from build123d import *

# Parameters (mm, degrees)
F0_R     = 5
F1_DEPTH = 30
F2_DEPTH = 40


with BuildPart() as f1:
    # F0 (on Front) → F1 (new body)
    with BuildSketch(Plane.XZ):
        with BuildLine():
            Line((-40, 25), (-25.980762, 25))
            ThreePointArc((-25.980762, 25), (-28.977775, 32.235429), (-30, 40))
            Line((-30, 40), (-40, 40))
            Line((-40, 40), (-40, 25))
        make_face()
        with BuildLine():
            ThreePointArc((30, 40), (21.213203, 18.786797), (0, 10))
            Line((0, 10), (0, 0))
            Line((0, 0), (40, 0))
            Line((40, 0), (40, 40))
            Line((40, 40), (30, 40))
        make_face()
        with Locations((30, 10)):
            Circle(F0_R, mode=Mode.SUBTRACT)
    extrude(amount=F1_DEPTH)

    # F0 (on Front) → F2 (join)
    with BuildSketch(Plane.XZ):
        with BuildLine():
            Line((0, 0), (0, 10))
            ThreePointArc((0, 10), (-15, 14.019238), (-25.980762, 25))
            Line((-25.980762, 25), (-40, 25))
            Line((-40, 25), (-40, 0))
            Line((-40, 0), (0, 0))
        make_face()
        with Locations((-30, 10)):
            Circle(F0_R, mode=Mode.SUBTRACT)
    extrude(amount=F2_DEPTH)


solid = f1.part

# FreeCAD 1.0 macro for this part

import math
import FreeCAD as App
import Part
import Sketcher
from FreeCAD import Vector

doc = App.newDocument("Part")
body = doc.addObject("PartDesign::Body", "Body")
body.AllowCompound = True

# Sketch on XZ plane
sketch1 = doc.addObject("Sketcher::SketchObject", "Sketch")
body.addObject(sketch1)
sketch1.AttachmentSupport = (doc.XZ_Plane, [""])
sketch1.MapMode = "FlatFace"
sketch1.addGeometry([
    Part.LineSegment(Vector(-40, 25, 0), Vector(-26, 25, 0)),  # 0
    Part.ArcOfCircle(Part.Circle(Vector(0, 40, 0), Vector(0, 0, 1), 30), math.radians(180), math.radians(210)),  # 1
    Part.LineSegment(Vector(-30, 40, 0), Vector(-40, 40, 0)),  # 2
    Part.LineSegment(Vector(-40, 40, 0), Vector(-40, 25, 0)),  # 3
    Part.ArcOfCircle(Part.Circle(Vector(0, 40, 0), Vector(0, 0, 1), 30), math.radians(-90), math.radians(0)),  # 4
    Part.LineSegment(Vector(0, 10, 0), Vector(0, 0, 0)),  # 5
    Part.LineSegment(Vector(0, 0, 0), Vector(40, 0, 0)),  # 6
    Part.LineSegment(Vector(40, 0, 0), Vector(40, 40, 0)),  # 7
    Part.LineSegment(Vector(40, 40, 0), Vector(30, 40, 0)),  # 8
    Part.Circle(Vector(30, 10, 0), Vector(0, 0, 1), 5),  # 9
], False)
sketch1.addConstraint([
    Sketcher.Constraint("Coincident", 0, 2, 1, 2),
    Sketcher.Constraint("Coincident", 1, 1, 2, 1),
    Sketcher.Constraint("Coincident", 2, 2, 3, 1),
    Sketcher.Constraint("Coincident", 3, 2, 0, 1),
    Sketcher.Constraint("Coincident", 4, 1, 5, 1),
    Sketcher.Constraint("Coincident", 5, 2, 6, 1),
    Sketcher.Constraint("Coincident", 6, 2, 7, 1),
    Sketcher.Constraint("Coincident", 7, 2, 8, 1),
    Sketcher.Constraint("Coincident", 8, 2, 4, 2),
    Sketcher.Constraint("Horizontal", 0),
    Sketcher.Constraint("Horizontal", 2),
    Sketcher.Constraint("Vertical", 3),
    Sketcher.Constraint("Vertical", 5),
    Sketcher.Constraint("Horizontal", 6),
    Sketcher.Constraint("Vertical", 7),
    Sketcher.Constraint("Horizontal", 8),
    Sketcher.Constraint("Coincident", 5, 2, -1, 1),
    Sketcher.Constraint("Coincident", 4, 3, 1, 3),
    Sketcher.Constraint("Symmetric", 2, 2, 7, 2, -2),
    Sketcher.Constraint("PointOnObject", 4, 3, -2),
    Sketcher.Constraint("Horizontal", 4, 3, 1, 1),
    Sketcher.Constraint("Horizontal", 9, 3, 4, 1),
    Sketcher.Constraint("Vertical", 9, 3, 8, 2),
    Sketcher.Constraint("Equal", 2, 8),
    Sketcher.Constraint("Equal", 8, 5),
    Sketcher.Constraint("Diameter", 9, 10.0),
    Sketcher.Constraint("Radius", 4, 30.000001),
    Sketcher.Constraint("DistanceX", 2, 2, 2, 1, 10.0),
    Sketcher.Constraint("DistanceY", 3, 2, 3, 1, 15.0),
])
pad1 = doc.addObject("PartDesign::Pad", "Pad")
body.addObject(pad1)
pad1.Profile = sketch1
pad1.Length = 30

# Sketch on XZ plane
sketch2 = doc.addObject("Sketcher::SketchObject", "Sketch001")
body.addObject(sketch2)
sketch2.AttachmentSupport = (doc.XZ_Plane, [""])
sketch2.MapMode = "FlatFace"
sketch2.addGeometry([
    Part.LineSegment(Vector(0, 0, 0), Vector(0, 10, 0)),  # 0
    Part.ArcOfCircle(Part.Circle(Vector(0, 40, 0), Vector(0, 0, 1), 30), math.radians(-150), math.radians(-90)),  # 1
    Part.LineSegment(Vector(-26, 25, 0), Vector(-40, 25, 0)),  # 2
    Part.LineSegment(Vector(-40, 25, 0), Vector(-40, 0, 0)),  # 3
    Part.LineSegment(Vector(-40, 0, 0), Vector(0, 0, 0)),  # 4
    Part.Circle(Vector(-30, 10, 0), Vector(0, 0, 1), 5),  # 5
], False)
sketch2.addConstraint([
    Sketcher.Constraint("Coincident", 0, 2, 1, 2),
    Sketcher.Constraint("Coincident", 1, 1, 2, 1),
    Sketcher.Constraint("Coincident", 2, 2, 3, 1),
    Sketcher.Constraint("Coincident", 3, 2, 4, 1),
    Sketcher.Constraint("Coincident", 4, 2, 0, 1),
    Sketcher.Constraint("Vertical", 0),
    Sketcher.Constraint("Horizontal", 2),
    Sketcher.Constraint("Vertical", 3),
    Sketcher.Constraint("Horizontal", 4),
    Sketcher.Constraint("Coincident", 4, 2, -1, 1),
    Sketcher.Constraint("PointOnObject", 1, 3, -2),
    Sketcher.Constraint("Horizontal", 5, 3, 0, 2),
    Sketcher.Constraint("Diameter", 5, 10.0),
    Sketcher.Constraint("Radius", 1, 30.0),
    Sketcher.Constraint("DistanceX", 4, 1, 4, 2, 40.0),
    Sketcher.Constraint("DistanceY", 0, 1, 0, 2, 10.0),
    Sketcher.Constraint("DistanceY", 3, 2, 3, 1, 25.0),
    Sketcher.Constraint("DistanceX", 5, 3, -1, 1, 30.0),
])
pad2 = doc.addObject("PartDesign::Pad", "Pad001")
body.addObject(pad2)
pad2.Profile = sketch2
pad2.Length = 40

doc.recompute()
